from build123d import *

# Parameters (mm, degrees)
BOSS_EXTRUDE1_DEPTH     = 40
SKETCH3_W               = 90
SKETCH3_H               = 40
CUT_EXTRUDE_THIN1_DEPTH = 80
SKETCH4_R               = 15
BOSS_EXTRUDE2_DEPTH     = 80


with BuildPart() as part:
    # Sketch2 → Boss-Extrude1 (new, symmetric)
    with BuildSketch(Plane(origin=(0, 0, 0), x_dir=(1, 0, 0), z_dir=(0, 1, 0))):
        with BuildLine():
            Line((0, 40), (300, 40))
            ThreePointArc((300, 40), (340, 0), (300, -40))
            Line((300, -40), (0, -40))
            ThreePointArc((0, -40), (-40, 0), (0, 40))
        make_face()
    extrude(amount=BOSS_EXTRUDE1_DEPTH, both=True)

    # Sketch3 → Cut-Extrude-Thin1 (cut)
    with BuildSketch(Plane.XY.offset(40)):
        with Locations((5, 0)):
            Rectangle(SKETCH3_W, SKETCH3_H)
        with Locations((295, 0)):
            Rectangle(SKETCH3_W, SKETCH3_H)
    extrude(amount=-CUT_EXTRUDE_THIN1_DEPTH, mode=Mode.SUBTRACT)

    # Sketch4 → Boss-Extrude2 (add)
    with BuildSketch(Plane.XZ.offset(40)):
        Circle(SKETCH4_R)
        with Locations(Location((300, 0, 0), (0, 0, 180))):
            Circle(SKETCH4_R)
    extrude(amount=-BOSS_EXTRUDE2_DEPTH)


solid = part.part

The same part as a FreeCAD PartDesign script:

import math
import FreeCAD as App
import Part
import Sketcher
from FreeCAD import Vector
Q = App.Units.Quantity


def add_polygon(sketch, points):
    """Adds a closed chain of lines whose ends are joined by coincident constraints."""
    first, n = sketch.GeometryCount, len(points)
    for a, b in zip(points, points[1:] + points[:1]):
        sketch.addGeometry(Part.LineSegment(App.Vector(*a, 0), App.Vector(*b, 0)), False)
    for i in range(n):
        sketch.addConstraint(Sketcher.Constraint("Coincident", first + i, 2, first + (i + 1) % n, 1))

doc = App.newDocument("Part")
body = doc.addObject("PartDesign::Body", "Body")

# Sketch on XZ plane
sketch1 = body.newObject("Sketcher::SketchObject", "Sketch")
sketch1.AttachmentSupport = (doc.getObject("XZ_Plane"), [""])
sketch1.MapMode = "FlatFace"
sketch1.addGeometry(Part.LineSegment(Vector(300, -40, 0), Vector(0, -40, 0)), False)
sketch1.addGeometry(Part.ArcOfCircle(Part.Circle(Vector(0, 0, 0), Vector(0, 0, 1), 40), math.radians(90), math.radians(270)), False)
sketch1.addGeometry(Part.LineSegment(Vector(0, 40, 0), Vector(300, 40, 0)), False)
sketch1.addGeometry(Part.ArcOfCircle(Part.Circle(Vector(300, 0, 0), Vector(0, 0, 1), 40), math.radians(-90), math.radians(90)), False)
sketch1.addConstraint(Sketcher.Constraint("Tangent", 0, 2, 1, 2))
sketch1.addConstraint(Sketcher.Constraint("Tangent", 1, 1, 2, 1))
sketch1.addConstraint(Sketcher.Constraint("Tangent", 2, 2, 3, 2))
sketch1.addConstraint(Sketcher.Constraint("Tangent", 3, 1, 0, 1))
sketch1.addConstraint(Sketcher.Constraint("Horizontal", 0))
sketch1.addConstraint(Sketcher.Constraint("Horizontal", 2))
sketch1.addConstraint(Sketcher.Constraint("Coincident", 1, 3, -1, 1))
sketch1.addConstraint(Sketcher.Constraint("Radius", 1, Q("40 mm")))
sketch1.addConstraint(Sketcher.Constraint("DistanceX", 0, 2, 0, 1, Q("300 mm")))
pad1 = body.newObject("PartDesign::Pad", "Pad")
pad1.Profile = sketch1
pad1.Length = 80
pad1.Midplane = True

# Sketch on XY plane
sketch2 = body.newObject("Sketcher::SketchObject", "Sketch001")
sketch2.AttachmentSupport = (doc.getObject("XY_Plane"), [""])
sketch2.MapMode = "FlatFace"
sketch2.AttachmentOffset = App.Placement(Vector(0, 0, 40), App.Rotation())
add_polygon(sketch2, [(-40, 20), (-40, -20), (50, -20), (50, 20)])  # lines 0-3
add_polygon(sketch2, [(250, 20), (250, -20), (340, -20), (340, 20)])  # lines 4-7
sketch2.addConstraint(Sketcher.Constraint("Vertical", 0))
sketch2.addConstraint(Sketcher.Constraint("Horizontal", 1))
sketch2.addConstraint(Sketcher.Constraint("Vertical", 2))
sketch2.addConstraint(Sketcher.Constraint("Horizontal", 3))
sketch2.addConstraint(Sketcher.Constraint("Vertical", 4))
sketch2.addConstraint(Sketcher.Constraint("Horizontal", 5))
sketch2.addConstraint(Sketcher.Constraint("Vertical", 6))
sketch2.addConstraint(Sketcher.Constraint("Horizontal", 7))
sketch2.addConstraint(Sketcher.Constraint("Horizontal", 1, 2, 4, 2))
sketch2.addConstraint(Sketcher.Constraint("Horizontal", 3, 2, 6, 2))
sketch2.addConstraint(Sketcher.Constraint("Equal", 3, 5))
sketch2.addConstraint(Sketcher.Constraint("DistanceX", 1, 1, 1, 2, Q("90 mm")))
sketch2.addConstraint(Sketcher.Constraint("DistanceY", 0, 2, 0, 1, Q("40 mm")))
sketch2.addConstraint(Sketcher.Constraint("DistanceX", 0, 2, -1, 1, Q("40 mm")))
sketch2.addConstraint(Sketcher.Constraint("DistanceY", 0, 2, -1, 1, Q("20 mm")))
sketch2.addConstraint(Sketcher.Constraint("DistanceX", -1, 1, 4, 2, Q("250 mm")))
pocket1 = body.newObject("PartDesign::Pocket", "Pocket")
pocket1.Profile = sketch2
pocket1.Length = 80

# Sketch on XZ plane
sketch3 = body.newObject("Sketcher::SketchObject", "Sketch002")
sketch3.AttachmentSupport = (doc.getObject("XZ_Plane"), [""])
sketch3.MapMode = "FlatFace"
sketch3.AttachmentOffset = App.Placement(Vector(0, 0, 40), App.Rotation())
sketch3.addGeometry(Part.Circle(Vector(0, 0, 0), Vector(0, 0, 1), 15), False)
sketch3.addGeometry(Part.Circle(Vector(300, 0, 0), Vector(0, 0, 1), 15), False)
sketch3.addConstraint(Sketcher.Constraint("Coincident", 0, 3, -1, 1))
sketch3.addConstraint(Sketcher.Constraint("Equal", 0, 1))
sketch3.addConstraint(Sketcher.Constraint("PointOnObject", 1, 3, -1))
sketch3.addConstraint(Sketcher.Constraint("Diameter", 0, Q("30 mm")))
sketch3.addConstraint(Sketcher.Constraint("DistanceX", -1, 1, 1, 3, Q("300 mm")))
pad2 = body.newObject("PartDesign::Pad", "Pad001")
pad2.Profile = sketch3
pad2.Length = 80
pad2.Reversed = True

doc.recompute()
